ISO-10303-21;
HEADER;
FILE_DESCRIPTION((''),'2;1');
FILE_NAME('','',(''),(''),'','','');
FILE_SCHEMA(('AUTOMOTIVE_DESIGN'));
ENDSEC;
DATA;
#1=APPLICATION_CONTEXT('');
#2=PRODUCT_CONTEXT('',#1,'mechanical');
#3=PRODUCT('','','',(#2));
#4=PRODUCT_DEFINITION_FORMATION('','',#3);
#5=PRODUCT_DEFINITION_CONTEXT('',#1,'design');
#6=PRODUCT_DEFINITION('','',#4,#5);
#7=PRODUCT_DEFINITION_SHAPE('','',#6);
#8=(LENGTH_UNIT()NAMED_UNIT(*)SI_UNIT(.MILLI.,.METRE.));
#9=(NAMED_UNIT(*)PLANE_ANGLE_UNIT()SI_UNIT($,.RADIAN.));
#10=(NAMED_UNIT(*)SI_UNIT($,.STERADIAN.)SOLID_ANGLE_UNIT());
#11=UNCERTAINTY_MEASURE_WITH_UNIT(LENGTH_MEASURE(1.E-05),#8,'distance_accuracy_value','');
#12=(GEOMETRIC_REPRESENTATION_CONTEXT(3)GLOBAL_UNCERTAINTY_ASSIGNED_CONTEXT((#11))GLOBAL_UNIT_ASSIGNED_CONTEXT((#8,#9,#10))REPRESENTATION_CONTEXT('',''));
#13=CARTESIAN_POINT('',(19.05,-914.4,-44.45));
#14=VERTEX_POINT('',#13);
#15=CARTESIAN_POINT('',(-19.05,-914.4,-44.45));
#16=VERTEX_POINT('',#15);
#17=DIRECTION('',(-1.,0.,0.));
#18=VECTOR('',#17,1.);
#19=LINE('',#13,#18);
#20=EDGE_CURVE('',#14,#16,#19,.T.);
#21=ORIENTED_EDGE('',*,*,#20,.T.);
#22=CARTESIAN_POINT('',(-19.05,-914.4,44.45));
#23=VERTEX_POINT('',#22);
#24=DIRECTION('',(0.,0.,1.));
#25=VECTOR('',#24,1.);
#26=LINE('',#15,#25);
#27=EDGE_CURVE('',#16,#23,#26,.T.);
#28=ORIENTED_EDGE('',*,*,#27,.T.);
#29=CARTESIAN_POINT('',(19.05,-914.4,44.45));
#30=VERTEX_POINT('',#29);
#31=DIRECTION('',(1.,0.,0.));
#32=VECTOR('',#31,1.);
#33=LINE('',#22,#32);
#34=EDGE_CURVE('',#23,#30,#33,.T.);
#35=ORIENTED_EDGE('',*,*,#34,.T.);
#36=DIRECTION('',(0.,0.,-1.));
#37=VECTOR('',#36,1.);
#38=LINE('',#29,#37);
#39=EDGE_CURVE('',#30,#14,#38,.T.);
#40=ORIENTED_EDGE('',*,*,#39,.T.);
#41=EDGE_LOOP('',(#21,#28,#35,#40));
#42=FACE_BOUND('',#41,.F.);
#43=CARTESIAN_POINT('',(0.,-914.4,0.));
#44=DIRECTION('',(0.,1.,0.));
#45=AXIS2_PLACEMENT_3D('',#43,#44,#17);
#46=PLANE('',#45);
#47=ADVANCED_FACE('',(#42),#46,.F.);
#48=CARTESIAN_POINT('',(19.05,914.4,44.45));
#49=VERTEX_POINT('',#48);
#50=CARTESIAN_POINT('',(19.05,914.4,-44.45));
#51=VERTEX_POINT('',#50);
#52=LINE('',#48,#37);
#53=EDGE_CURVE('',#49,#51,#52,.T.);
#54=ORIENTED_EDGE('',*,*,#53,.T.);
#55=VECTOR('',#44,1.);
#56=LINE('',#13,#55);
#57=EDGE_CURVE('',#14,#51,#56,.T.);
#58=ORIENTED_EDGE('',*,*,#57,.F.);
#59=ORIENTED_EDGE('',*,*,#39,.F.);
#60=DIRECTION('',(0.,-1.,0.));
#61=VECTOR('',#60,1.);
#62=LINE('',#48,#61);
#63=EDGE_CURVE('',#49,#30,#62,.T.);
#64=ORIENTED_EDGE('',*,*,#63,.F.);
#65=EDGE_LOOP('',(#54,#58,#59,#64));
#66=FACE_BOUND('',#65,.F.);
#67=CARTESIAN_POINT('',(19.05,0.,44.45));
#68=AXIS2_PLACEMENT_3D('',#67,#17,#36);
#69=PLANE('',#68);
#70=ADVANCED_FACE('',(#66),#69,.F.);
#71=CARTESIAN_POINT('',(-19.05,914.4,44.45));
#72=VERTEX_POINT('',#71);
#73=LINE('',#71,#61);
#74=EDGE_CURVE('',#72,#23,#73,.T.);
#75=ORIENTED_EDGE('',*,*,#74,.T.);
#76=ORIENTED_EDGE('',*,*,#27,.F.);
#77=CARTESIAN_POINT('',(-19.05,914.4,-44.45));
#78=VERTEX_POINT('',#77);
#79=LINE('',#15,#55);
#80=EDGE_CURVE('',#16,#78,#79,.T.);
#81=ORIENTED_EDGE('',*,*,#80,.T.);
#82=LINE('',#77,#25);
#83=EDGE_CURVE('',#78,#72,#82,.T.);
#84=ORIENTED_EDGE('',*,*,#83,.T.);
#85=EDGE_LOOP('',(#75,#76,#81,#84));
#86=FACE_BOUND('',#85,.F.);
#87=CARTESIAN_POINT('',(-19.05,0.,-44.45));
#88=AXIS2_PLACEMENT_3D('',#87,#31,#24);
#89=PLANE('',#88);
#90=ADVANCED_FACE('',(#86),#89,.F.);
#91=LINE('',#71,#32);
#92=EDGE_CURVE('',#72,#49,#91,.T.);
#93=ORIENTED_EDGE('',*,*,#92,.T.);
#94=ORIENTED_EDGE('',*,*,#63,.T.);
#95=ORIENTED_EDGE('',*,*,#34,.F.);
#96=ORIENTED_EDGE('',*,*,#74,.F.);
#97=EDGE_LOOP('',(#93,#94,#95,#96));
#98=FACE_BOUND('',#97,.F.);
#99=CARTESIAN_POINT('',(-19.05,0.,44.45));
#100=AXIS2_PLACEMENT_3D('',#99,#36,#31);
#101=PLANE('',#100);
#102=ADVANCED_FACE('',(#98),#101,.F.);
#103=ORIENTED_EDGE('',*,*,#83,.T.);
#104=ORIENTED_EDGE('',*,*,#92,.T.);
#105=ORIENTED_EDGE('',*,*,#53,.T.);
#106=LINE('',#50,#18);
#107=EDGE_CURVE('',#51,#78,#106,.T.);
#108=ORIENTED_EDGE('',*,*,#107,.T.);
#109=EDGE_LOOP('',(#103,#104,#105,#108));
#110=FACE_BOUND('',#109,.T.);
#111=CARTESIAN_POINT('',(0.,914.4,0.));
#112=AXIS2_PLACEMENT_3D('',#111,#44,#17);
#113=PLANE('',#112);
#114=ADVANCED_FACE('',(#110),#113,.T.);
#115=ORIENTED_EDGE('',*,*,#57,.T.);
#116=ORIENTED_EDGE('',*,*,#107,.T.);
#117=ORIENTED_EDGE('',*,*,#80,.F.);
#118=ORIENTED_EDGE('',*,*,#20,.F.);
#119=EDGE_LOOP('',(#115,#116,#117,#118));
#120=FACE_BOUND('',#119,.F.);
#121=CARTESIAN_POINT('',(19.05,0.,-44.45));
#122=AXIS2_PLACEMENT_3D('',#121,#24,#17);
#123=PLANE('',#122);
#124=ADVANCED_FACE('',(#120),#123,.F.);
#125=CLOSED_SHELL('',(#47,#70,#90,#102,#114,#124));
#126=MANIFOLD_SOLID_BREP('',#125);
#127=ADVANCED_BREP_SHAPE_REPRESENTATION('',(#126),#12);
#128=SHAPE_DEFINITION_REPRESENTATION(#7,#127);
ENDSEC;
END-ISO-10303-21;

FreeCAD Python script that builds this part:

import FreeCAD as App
import Part
import Sketcher

V = App.Vector
Q = App.Units.Quantity

doc = App.newDocument("Part")
body = doc.addObject("PartDesign::Body", "Body")

# Sketch on XZ plane
sketch1 = body.newObject("Sketcher::SketchObject", "Sketch")
sketch1.AttachmentSupport = (doc.getObject("XZ_Plane"), [""])
sketch1.MapMode = "FlatFace"
sketch1.addGeometry(Part.LineSegment(V(19, 44, 0), V(19, -44, 0)), False)
sketch1.addGeometry(Part.LineSegment(V(19, -44, 0), V(-19, -44, 0)), False)
sketch1.addGeometry(Part.LineSegment(V(-19, -44, 0), V(-19, 44, 0)), False)
sketch1.addGeometry(Part.LineSegment(V(-19, 44, 0), V(19, 44, 0)), False)
sketch1.addConstraint(Sketcher.Constraint("Coincident", 0, 2, 1, 1))
sketch1.addConstraint(Sketcher.Constraint("Coincident", 1, 2, 2, 1))
sketch1.addConstraint(Sketcher.Constraint("Coincident", 2, 2, 3, 1))
sketch1.addConstraint(Sketcher.Constraint("Coincident", 3, 2, 0, 1))
sketch1.addConstraint(Sketcher.Constraint("Vertical", 0))
sketch1.addConstraint(Sketcher.Constraint("Horizontal", 1))
sketch1.addConstraint(Sketcher.Constraint("Vertical", 2))
sketch1.addConstraint(Sketcher.Constraint("Horizontal", 3))
sketch1.addConstraint(Sketcher.Constraint("Symmetric", 0, 2, 2, 2, -1, 1))
sketch1.addConstraint(Sketcher.Constraint("DistanceX", 1, 2, 1, 1, Q("1.5 in")))
sketch1.addConstraint(Sketcher.Constraint("DistanceY", 0, 2, 0, 1, Q("3.5 in")))
pad1 = body.newObject("PartDesign::Pad", "Pad")
pad1.Profile = sketch1
pad1.Length = Q("72 in")
pad1.Midplane = True

doc.recompute()
